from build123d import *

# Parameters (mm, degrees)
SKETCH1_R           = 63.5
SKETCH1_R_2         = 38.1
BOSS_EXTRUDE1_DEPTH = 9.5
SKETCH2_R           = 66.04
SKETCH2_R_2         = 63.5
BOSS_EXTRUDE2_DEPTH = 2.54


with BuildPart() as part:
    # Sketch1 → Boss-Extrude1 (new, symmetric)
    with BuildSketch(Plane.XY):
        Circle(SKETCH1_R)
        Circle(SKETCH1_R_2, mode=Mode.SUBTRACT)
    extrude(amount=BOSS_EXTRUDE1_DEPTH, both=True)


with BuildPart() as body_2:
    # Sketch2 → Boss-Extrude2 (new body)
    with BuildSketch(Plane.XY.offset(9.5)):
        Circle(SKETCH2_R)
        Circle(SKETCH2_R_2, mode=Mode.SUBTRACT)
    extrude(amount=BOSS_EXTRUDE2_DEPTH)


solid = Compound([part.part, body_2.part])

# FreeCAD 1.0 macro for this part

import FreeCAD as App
import Part
import Sketcher
from FreeCAD import Vector
Q = App.Units.Quantity

doc = App.newDocument("Part")
body = doc.addObject("PartDesign::Body", "Body")

# Sketch on XY plane
sketch1 = doc.addObject("Sketcher::SketchObject", "Sketch")
body.addObject(sketch1)
sketch1.AttachmentSupport = (doc.XY_Plane, [""])
sketch1.MapMode = "FlatFace"
sketch1.addGeometry([
    Part.Circle(Vector(0, 0, 0), Vector(0, 0, 1), 63.5),
    Part.Circle(Vector(0, 0, 0), Vector(0, 0, 1), 38.1),
], False)
sketch1.addConstraint([
    Sketcher.Constraint("Coincident", 0, 3, -1, 1),
    Sketcher.Constraint("Coincident", 1, 3, -1, 1),
    Sketcher.Constraint("Diameter", 0, Q("5 in")),
    Sketcher.Constraint("Diameter", 1, Q("3 in")),
])
pad1 = doc.addObject("PartDesign::Pad", "Pad")
body.addObject(pad1)
pad1.Profile = sketch1
pad1.Length = 19
pad1.Midplane = True
body2 = doc.addObject("PartDesign::Body", "Body001")

# Sketch on XY plane
sketch2 = doc.addObject("Sketcher::SketchObject", "Sketch001")
body2.addObject(sketch2)
sketch2.AttachmentSupport = (doc.getObject("XY_Plane001"), [""])
sketch2.MapMode = "FlatFace"
sketch2.AttachmentOffset = App.Placement(Vector(0, 0, 9.5), App.Rotation())
sketch2.addGeometry([
    Part.Circle(Vector(0, 0, 0), Vector(0, 0, 1), 66.04),
    Part.Circle(Vector(0, 0, 0), Vector(0, 0, 1), 63.5),
], False)
sketch2.addConstraint([
    Sketcher.Constraint("Coincident", 0, 3, -1, 1),
    Sketcher.Constraint("Coincident", 1, 3, -1, 1),
    Sketcher.Constraint("Diameter", 1, Q("5 in")),
    Sketcher.Constraint("Diameter", 0, Q("5.2 in")),
])
pad2 = doc.addObject("PartDesign::Pad", "Pad001")
body2.addObject(pad2)
pad2.Profile = sketch2
pad2.Length = Q("0.1 in")

doc.recompute()
